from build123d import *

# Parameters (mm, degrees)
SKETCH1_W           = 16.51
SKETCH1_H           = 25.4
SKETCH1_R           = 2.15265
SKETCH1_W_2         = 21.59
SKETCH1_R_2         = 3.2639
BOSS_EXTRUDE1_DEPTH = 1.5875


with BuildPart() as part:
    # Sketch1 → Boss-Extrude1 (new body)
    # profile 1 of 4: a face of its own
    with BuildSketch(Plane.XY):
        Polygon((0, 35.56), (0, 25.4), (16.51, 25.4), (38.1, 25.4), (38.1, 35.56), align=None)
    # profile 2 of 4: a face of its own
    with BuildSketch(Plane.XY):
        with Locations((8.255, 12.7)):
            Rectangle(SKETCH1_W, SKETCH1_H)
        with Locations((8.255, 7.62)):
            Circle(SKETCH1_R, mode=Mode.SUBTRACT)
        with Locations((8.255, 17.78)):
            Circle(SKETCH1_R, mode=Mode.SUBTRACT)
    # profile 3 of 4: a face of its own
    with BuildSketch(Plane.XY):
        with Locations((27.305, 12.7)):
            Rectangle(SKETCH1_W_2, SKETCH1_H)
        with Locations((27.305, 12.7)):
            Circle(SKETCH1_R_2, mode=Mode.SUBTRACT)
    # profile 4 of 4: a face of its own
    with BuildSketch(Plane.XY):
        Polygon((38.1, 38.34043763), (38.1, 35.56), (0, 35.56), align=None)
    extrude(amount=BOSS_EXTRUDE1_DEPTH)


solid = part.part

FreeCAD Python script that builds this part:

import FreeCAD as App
import Part
import Sketcher

V = App.Vector
Q = App.Units.Quantity

doc = App.newDocument("Part")
params = doc.addObject("Spreadsheet::Sheet", "Params")
for row, (alias, value) in enumerate([
    ("sketch1_diameter", "0.257 in"),
    ("sketch1_width", "1.5 in"),
    ("sketch1_height", "1.4 in"),
    ("pad1_length", "0.0625 in"),
], start=1):
    params.set(f"A{row}", alias)
    params.set(f"B{row}", "=" + value)
    params.setAlias(f"B{row}", alias)

body = doc.addObject("PartDesign::Body", "Body")

sketch1 = body.newObject("Sketcher::SketchObject", "Sketch")
sketch1.AttachmentSupport = (doc.getObject("XY_Plane"), [""])
sketch1.MapMode = "FlatFace"
sketch1.addGeometry(Part.LineSegment(V(0, 35.56, 0), V(0, 0, 0)), False)
sketch1.addGeometry(Part.LineSegment(V(0, 0, 0), V(38.1, 0, 0)), False)
sketch1.addGeometry(Part.LineSegment(V(38.1, 0, 0), V(38.1, 38.340438, 0)), False)
sketch1.addGeometry(Part.LineSegment(V(38.1, 38.340438, 0), V(0, 35.56, 0)), False)
sketch1.addGeometry(Part.Circle(V(8.255, 17.78, 0), V(0, 0, 1), 2.15265), False)
sketch1.addGeometry(Part.Circle(V(8.255, 7.62, 0), V(0, 0, 1), 2.15265), False)
sketch1.addGeometry(Part.Circle(V(27.305, 12.7, 0), V(0, 0, 1), 3.2639), False)
sketch1.addConstraint(Sketcher.Constraint("Coincident", 0, 2, 1, 1))
sketch1.addConstraint(Sketcher.Constraint("Coincident", 1, 2, 2, 1))
sketch1.addConstraint(Sketcher.Constraint("Coincident", 2, 2, 3, 1))
sketch1.addConstraint(Sketcher.Constraint("Coincident", 3, 2, 0, 1))
sketch1.addConstraint(Sketcher.Constraint("Vertical", 0))
sketch1.addConstraint(Sketcher.Constraint("Horizontal", 1))
sketch1.addConstraint(Sketcher.Constraint("Vertical", 2))
sketch1.addConstraint(Sketcher.Constraint("Coincident", 0, 2, -1, 1))
sketch1.addConstraint(Sketcher.Constraint("Equal", 4, 5))
sketch1.addConstraint(Sketcher.Constraint("Vertical", 4, 3, 5, 3))
sketch1.addConstraint(Sketcher.Constraint("Diameter", 6, Q("0.257 in")))
sketch1.addConstraint(Sketcher.Constraint("DistanceX", 1, 1, 1, 2, Q("1.5 in")))
sketch1.addConstraint(Sketcher.Constraint("DistanceY", 0, 2, 0, 1, Q("1.4 in")))
sketch1.addConstraint(Sketcher.Constraint("Diameter", 4, Q("0.1695 in")))
sketch1.addConstraint(Sketcher.Constraint("DistanceY", -1, 1, 4, 3, Q("0.7 in")))
sketch1.addConstraint(Sketcher.Constraint("DistanceY", -1, 1, 5, 3, Q("0.3 in")))
sketch1.addConstraint(Sketcher.Constraint("DistanceY", -1, 1, 6, 3, Q("0.5 in")))
sketch1.addConstraint(Sketcher.Constraint("DistanceX", 4, 3, 6, 3, Q("0.75 in")))
sketch1.addConstraint(Sketcher.Constraint("DistanceX", -1, 1, 4, 3, Q("0.325 in")))
sketch1.addConstraint(Sketcher.Constraint("Distance", 3, 38.20132))
sketch1.setExpression("Constraints[10]", "Params.sketch1_diameter")
sketch1.setExpression("Constraints[11]", "Params.sketch1_width")
sketch1.setExpression("Constraints[12]", "Params.sketch1_height")
pad1 = body.newObject("PartDesign::Pad", "Pad")
pad1.Profile = sketch1
pad1.setExpression("Length", "Params.pad1_length")

doc.recompute()
